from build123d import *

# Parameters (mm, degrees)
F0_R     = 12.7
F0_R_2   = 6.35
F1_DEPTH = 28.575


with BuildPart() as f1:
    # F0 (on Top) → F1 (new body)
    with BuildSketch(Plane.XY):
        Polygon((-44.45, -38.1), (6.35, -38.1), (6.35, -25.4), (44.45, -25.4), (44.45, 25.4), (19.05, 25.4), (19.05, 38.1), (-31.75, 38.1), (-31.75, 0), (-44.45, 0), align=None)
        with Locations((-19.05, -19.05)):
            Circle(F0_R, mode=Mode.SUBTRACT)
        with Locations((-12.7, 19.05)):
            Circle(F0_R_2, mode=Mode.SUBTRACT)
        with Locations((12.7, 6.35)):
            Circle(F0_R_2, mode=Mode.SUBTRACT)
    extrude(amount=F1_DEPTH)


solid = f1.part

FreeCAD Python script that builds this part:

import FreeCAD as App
import Part
import Sketcher
Q = App.Units.Quantity


def add_polygon(sketch, points):
    """Adds a closed chain of lines whose ends are joined by coincident constraints."""
    first, n = sketch.GeometryCount, len(points)
    for a, b in zip(points, points[1:] + points[:1]):
        sketch.addGeometry(Part.LineSegment(App.Vector(*a, 0), App.Vector(*b, 0)), False)
    for i in range(n):
        sketch.addConstraint(Sketcher.Constraint("Coincident", first + i, 2, first + (i + 1) % n, 1))

doc = App.newDocument("Part")
body = doc.addObject("PartDesign::Body", "Body")

sketch1 = body.newObject("Sketcher::SketchObject", "Sketch")
sketch1.AttachmentSupport = (doc.getObject("XY_Plane"), [""])
sketch1.MapMode = "FlatFace"
add_polygon(sketch1, [(-44, -38), (6, -38), (6, -25), (44, -25), (44, 25), (19, 25), (19, 38), (-32, 38), (-32, 0), (-44, 0)])
sketch1.addGeometry(Part.Circle(App.Vector(-19, -19, 0), App.Vector(0, 0, 1), 13), False)
sketch1.addGeometry(Part.Circle(App.Vector(-13, 19, 0), App.Vector(0, 0, 1), 6), False)
sketch1.addGeometry(Part.Circle(App.Vector(13, 6, 0), App.Vector(0, 0, 1), 6), False)
sketch1.addConstraint([
    Sketcher.Constraint("Horizontal", 0),
    Sketcher.Constraint("Vertical", 1),
    Sketcher.Constraint("Horizontal", 2),
    Sketcher.Constraint("Vertical", 3),
    Sketcher.Constraint("Horizontal", 4),
    Sketcher.Constraint("Vertical", 5),
    Sketcher.Constraint("Horizontal", 6),
    Sketcher.Constraint("Vertical", 7),
    Sketcher.Constraint("Horizontal", 8),
    Sketcher.Constraint("Vertical", 9),
    Sketcher.Constraint("Equal", 11, 12),
    Sketcher.Constraint("PointOnObject", 7, 2, -1),
    Sketcher.Constraint("Equal", 0, 6),
    Sketcher.Constraint("Equal", 8, 1),
    Sketcher.Constraint("Equal", 6, 3),
    Sketcher.Constraint("Equal", 1, 5),
    Sketcher.Constraint("Equal", 2, 7),
    Sketcher.Constraint("Equal", 7, 9),
    Sketcher.Constraint("Diameter", 10, Q("1 in")),
    Sketcher.Constraint("Diameter", 11, Q("0.5 in")),
    Sketcher.Constraint("DistanceX", 0, 1, 0, 2, Q("2 in")),
    Sketcher.Constraint("DistanceX", 2, 1, 2, 2, Q("1.5 in")),
    Sketcher.Constraint("DistanceX", 11, 3, 12, 3, Q("1 in")),
    Sketcher.Constraint("DistanceY", 10, 3, 12, 3, Q("1 in")),
    Sketcher.Constraint("DistanceX", 10, 3, 0, 2, Q("1 in")),
    Sketcher.Constraint("DistanceX", 11, 3, -1, 1, Q("0.5 in")),
    Sketcher.Constraint("DistanceY", 10, 3, 11, 3, Q("1.5 in")),
    Sketcher.Constraint("DistanceX", 10, 3, -1, 1, Q("0.75 in")),
    Sketcher.Constraint("DistanceY", 10, 3, -1, 1, Q("0.75 in")),
])
pad1 = body.newObject("PartDesign::Pad", "Pad")
pad1.Profile = sketch1
pad1.Length = Q("1.125 in")

doc.recompute()
